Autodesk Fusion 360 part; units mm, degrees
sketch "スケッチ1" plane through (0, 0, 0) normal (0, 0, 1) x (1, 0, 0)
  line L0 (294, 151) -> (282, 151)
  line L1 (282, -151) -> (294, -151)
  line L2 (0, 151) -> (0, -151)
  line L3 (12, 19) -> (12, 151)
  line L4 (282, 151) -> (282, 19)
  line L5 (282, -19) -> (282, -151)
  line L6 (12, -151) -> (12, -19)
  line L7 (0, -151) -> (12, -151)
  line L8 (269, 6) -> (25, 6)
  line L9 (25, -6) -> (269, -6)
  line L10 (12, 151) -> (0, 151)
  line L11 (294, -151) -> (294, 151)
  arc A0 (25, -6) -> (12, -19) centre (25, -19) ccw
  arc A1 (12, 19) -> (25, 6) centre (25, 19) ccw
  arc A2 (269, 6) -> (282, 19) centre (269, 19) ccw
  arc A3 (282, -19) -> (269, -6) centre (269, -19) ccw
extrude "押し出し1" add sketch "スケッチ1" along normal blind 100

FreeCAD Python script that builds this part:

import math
import FreeCAD as App
import Part
import Sketcher
from FreeCAD import Vector

doc = App.newDocument("Part")
params = doc.addObject("Spreadsheet::Sheet", "Params")
for row, (alias, value) in enumerate([
    ("sketch1_radius", "13 mm"),
    ("sketch1_width", "12 mm"),
    ("sketch1_width2", "244 mm"),
    ("sketch1_height", "302 mm"),
    ("sketch1_height2", "132 mm"),
    ("pad1_length", "100 mm"),
], start=1):
    params.set(f"A{row}", alias)
    params.set(f"B{row}", "=" + value)
    params.setAlias(f"B{row}", alias)

body = doc.addObject("PartDesign::Body", "Body")

# Sketch on XY plane
sketch1 = doc.addObject("Sketcher::SketchObject", "Sketch")
body.addObject(sketch1)
sketch1.AttachmentSupport = (doc.XY_Plane, [""])
sketch1.MapMode = "FlatFace"
sketch1.addGeometry(Part.LineSegment(Vector(294, -151, 0), Vector(294, 151, 0)), False)
sketch1.addGeometry(Part.LineSegment(Vector(294, 151, 0), Vector(282, 151, 0)), False)
sketch1.addGeometry(Part.LineSegment(Vector(282, 151, 0), Vector(282, 19, 0)), False)
sketch1.addGeometry(Part.ArcOfCircle(Part.Circle(Vector(269, 19, 0), Vector(0, 0, 1), 13), math.radians(-90), math.radians(0)), False)
sketch1.addGeometry(Part.LineSegment(Vector(269, 6, 0), Vector(25, 6, 0)), False)
sketch1.addGeometry(Part.ArcOfCircle(Part.Circle(Vector(25, 19, 0), Vector(0, 0, 1), 13), math.radians(180), math.radians(270)), False)
sketch1.addGeometry(Part.LineSegment(Vector(12, 19, 0), Vector(12, 151, 0)), False)
sketch1.addGeometry(Part.LineSegment(Vector(12, 151, 0), Vector(0, 151, 0)), False)
sketch1.addGeometry(Part.LineSegment(Vector(0, 151, 0), Vector(0, -151, 0)), False)
sketch1.addGeometry(Part.LineSegment(Vector(0, -151, 0), Vector(12, -151, 0)), False)
sketch1.addGeometry(Part.LineSegment(Vector(12, -151, 0), Vector(12, -19, 0)), False)
sketch1.addGeometry(Part.ArcOfCircle(Part.Circle(Vector(25, -19, 0), Vector(0, 0, 1), 13), math.radians(90), math.radians(180)), False)
sketch1.addGeometry(Part.LineSegment(Vector(25, -6, 0), Vector(269, -6, 0)), False)
sketch1.addGeometry(Part.ArcOfCircle(Part.Circle(Vector(269, -19, 0), Vector(0, 0, 1), 13), math.radians(0), math.radians(90)), False)
sketch1.addGeometry(Part.LineSegment(Vector(282, -19, 0), Vector(282, -151, 0)), False)
sketch1.addGeometry(Part.LineSegment(Vector(282, -151, 0), Vector(294, -151, 0)), False)
sketch1.addConstraint(Sketcher.Constraint("Coincident", 0, 2, 1, 1))
sketch1.addConstraint(Sketcher.Constraint("Coincident", 1, 2, 2, 1))
sketch1.addConstraint(Sketcher.Constraint("Tangent", 2, 2, 3, 2))
sketch1.addConstraint(Sketcher.Constraint("Tangent", 3, 1, 4, 1))
sketch1.addConstraint(Sketcher.Constraint("Tangent", 4, 2, 5, 2))
sketch1.addConstraint(Sketcher.Constraint("Tangent", 5, 1, 6, 1))
sketch1.addConstraint(Sketcher.Constraint("Coincident", 6, 2, 7, 1))
sketch1.addConstraint(Sketcher.Constraint("Coincident", 7, 2, 8, 1))
sketch1.addConstraint(Sketcher.Constraint("Coincident", 8, 2, 9, 1))
sketch1.addConstraint(Sketcher.Constraint("Coincident", 9, 2, 10, 1))
sketch1.addConstraint(Sketcher.Constraint("Tangent", 10, 2, 11, 2))
sketch1.addConstraint(Sketcher.Constraint("Tangent", 11, 1, 12, 1))
sketch1.addConstraint(Sketcher.Constraint("Tangent", 12, 2, 13, 2))
sketch1.addConstraint(Sketcher.Constraint("Tangent", 13, 1, 14, 1))
sketch1.addConstraint(Sketcher.Constraint("Coincident", 14, 2, 15, 1))
sketch1.addConstraint(Sketcher.Constraint("Coincident", 15, 2, 0, 1))
sketch1.addConstraint(Sketcher.Constraint("Vertical", 0))
sketch1.addConstraint(Sketcher.Constraint("Horizontal", 1))
sketch1.addConstraint(Sketcher.Constraint("Vertical", 2))
sketch1.addConstraint(Sketcher.Constraint("Horizontal", 4))
sketch1.addConstraint(Sketcher.Constraint("Vertical", 6))
sketch1.addConstraint(Sketcher.Constraint("Horizontal", 7))
sketch1.addConstraint(Sketcher.Constraint("Vertical", 8))
sketch1.addConstraint(Sketcher.Constraint("Horizontal", 9))
sketch1.addConstraint(Sketcher.Constraint("Vertical", 10))
sketch1.addConstraint(Sketcher.Constraint("Horizontal", 12))
sketch1.addConstraint(Sketcher.Constraint("Vertical", 14))
sketch1.addConstraint(Sketcher.Constraint("Horizontal", 15))
sketch1.addConstraint(Sketcher.Constraint("Equal", 3, 5))
sketch1.addConstraint(Sketcher.Constraint("Equal", 5, 11))
sketch1.addConstraint(Sketcher.Constraint("Equal", 11, 13))
sketch1.addConstraint(Sketcher.Constraint("Symmetric", 7, 2, 8, 2, -1, 1))
sketch1.addConstraint(Sketcher.Constraint("Symmetric", 5, 3, 11, 3, -1))
sketch1.addConstraint(Sketcher.Constraint("Symmetric", 1, 2, 14, 2, -1))
sketch1.addConstraint(Sketcher.Constraint("Horizontal", 1, 2, 6, 2))
sketch1.addConstraint(Sketcher.Constraint("Equal", 1, 7))
sketch1.addConstraint(Sketcher.Constraint("Radius", 3, 13.0))
sketch1.addConstraint(Sketcher.Constraint("DistanceX", 1, 2, 1, 1, 12.0))
sketch1.addConstraint(Sketcher.Constraint("DistanceX", 4, 2, 4, 1, 244.0))
sketch1.addConstraint(Sketcher.Constraint("DistanceY", 0, 1, 0, 2, 302.0))
sketch1.addConstraint(Sketcher.Constraint("DistanceY", 2, 2, 2, 1, 132.0))
sketch1.setExpression("Constraints[36]", "Params.sketch1_radius")
sketch1.setExpression("Constraints[37]", "Params.sketch1_width")
sketch1.setExpression("Constraints[38]", "Params.sketch1_width2")
sketch1.setExpression("Constraints[39]", "Params.sketch1_height")
sketch1.setExpression("Constraints[40]", "Params.sketch1_height2")
pad1 = doc.addObject("PartDesign::Pad", "Pad")
body.addObject(pad1)
pad1.Profile = sketch1
pad1.setExpression("Length", "Params.pad1_length")

doc.recompute()
